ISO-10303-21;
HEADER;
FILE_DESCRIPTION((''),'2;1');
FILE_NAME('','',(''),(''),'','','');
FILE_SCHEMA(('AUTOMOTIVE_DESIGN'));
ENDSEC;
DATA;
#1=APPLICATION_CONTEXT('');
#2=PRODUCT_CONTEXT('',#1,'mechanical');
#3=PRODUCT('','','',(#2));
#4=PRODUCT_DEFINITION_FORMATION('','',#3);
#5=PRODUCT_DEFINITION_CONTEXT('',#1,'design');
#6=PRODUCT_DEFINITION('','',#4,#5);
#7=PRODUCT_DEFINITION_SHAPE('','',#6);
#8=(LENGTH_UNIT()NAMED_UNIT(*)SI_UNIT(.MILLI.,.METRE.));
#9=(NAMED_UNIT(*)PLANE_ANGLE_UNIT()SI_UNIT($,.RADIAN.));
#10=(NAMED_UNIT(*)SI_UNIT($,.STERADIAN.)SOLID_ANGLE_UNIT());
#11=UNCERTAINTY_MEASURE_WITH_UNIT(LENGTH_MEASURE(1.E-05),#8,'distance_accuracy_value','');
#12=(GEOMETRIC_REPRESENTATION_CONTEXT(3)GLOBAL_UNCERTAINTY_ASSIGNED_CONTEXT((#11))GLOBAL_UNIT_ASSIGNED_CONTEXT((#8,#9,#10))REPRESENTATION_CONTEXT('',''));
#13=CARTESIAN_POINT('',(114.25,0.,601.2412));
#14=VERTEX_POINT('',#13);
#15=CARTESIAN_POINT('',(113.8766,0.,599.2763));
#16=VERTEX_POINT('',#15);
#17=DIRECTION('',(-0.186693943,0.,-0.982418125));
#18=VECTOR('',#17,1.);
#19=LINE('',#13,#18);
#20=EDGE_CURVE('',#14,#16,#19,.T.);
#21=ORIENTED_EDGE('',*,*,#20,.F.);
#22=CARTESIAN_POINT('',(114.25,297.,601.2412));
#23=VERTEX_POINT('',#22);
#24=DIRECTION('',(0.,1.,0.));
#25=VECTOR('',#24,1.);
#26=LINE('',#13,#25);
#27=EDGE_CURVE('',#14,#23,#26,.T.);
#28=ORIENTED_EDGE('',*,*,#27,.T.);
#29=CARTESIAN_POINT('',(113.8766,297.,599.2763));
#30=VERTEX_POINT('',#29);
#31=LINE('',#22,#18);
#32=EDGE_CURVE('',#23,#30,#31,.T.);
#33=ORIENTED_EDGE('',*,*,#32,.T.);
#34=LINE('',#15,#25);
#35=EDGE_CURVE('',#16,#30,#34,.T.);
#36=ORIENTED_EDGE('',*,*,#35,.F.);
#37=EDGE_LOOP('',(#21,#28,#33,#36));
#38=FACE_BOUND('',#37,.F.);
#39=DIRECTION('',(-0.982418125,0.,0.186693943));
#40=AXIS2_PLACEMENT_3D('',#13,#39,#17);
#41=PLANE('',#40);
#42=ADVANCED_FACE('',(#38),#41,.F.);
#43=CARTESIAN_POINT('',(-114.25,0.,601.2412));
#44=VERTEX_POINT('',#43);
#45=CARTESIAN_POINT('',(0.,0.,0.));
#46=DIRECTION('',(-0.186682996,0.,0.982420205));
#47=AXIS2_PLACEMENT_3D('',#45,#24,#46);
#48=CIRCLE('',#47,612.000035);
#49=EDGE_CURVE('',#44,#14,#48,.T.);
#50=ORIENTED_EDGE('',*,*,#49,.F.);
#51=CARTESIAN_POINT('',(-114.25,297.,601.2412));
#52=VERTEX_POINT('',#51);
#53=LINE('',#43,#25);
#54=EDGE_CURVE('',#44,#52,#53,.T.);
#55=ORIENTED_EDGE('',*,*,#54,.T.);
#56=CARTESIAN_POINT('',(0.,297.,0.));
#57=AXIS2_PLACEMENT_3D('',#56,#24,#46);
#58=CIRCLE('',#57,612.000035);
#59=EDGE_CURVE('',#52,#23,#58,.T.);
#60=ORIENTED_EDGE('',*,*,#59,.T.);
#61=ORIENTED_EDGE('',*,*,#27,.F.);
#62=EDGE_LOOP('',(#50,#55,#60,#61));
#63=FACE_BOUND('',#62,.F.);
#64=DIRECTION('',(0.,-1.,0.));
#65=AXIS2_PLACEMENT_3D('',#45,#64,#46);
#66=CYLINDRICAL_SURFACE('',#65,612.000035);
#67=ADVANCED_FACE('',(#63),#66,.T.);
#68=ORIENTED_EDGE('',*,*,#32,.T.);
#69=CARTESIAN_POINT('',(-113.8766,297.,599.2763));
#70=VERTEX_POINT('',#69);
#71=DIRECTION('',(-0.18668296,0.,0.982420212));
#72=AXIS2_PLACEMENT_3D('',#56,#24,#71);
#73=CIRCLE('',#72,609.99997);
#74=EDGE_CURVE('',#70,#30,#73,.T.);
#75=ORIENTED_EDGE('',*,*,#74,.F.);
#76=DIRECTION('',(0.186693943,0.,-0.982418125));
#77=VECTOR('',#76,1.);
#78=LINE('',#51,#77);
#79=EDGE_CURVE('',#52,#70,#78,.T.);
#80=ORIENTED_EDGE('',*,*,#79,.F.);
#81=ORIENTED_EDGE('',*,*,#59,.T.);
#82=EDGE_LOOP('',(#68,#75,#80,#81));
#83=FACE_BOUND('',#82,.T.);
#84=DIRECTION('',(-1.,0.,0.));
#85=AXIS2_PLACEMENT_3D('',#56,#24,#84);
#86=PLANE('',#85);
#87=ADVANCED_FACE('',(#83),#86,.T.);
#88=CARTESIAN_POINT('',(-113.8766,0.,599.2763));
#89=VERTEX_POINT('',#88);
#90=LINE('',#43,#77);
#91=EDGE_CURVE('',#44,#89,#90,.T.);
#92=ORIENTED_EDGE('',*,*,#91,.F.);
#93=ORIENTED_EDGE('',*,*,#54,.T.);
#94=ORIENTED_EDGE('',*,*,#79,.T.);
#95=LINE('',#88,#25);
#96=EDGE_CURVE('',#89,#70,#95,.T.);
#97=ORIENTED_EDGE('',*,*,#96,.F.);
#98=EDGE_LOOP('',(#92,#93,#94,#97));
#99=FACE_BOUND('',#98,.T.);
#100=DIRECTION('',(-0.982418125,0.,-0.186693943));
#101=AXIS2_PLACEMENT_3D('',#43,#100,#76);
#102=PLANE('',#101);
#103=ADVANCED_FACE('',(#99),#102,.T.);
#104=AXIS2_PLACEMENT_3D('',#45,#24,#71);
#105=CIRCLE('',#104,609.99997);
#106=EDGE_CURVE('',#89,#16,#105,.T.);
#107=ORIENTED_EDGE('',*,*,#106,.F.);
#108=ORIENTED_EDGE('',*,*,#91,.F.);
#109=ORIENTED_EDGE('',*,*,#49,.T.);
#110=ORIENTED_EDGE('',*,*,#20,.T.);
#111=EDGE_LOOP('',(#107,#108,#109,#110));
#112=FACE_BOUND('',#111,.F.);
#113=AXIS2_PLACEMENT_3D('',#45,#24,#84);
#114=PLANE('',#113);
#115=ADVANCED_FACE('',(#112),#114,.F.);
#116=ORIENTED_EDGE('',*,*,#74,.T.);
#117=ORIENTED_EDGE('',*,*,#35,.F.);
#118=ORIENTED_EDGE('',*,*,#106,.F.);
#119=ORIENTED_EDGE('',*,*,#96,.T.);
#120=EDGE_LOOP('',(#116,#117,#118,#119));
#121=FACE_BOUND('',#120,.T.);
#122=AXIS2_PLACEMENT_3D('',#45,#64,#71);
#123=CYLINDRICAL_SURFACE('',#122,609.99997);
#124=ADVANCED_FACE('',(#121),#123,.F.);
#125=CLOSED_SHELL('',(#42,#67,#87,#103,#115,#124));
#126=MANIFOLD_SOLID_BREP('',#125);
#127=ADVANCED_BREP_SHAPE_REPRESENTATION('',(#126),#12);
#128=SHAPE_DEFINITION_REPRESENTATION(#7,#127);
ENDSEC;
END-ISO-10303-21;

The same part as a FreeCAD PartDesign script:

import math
import FreeCAD as App
import Part
import Sketcher
from FreeCAD import Vector
Q = App.Units.Quantity

doc = App.newDocument("Part")
body = doc.addObject("PartDesign::Body", "Body")

# Sketch on XZ plane
sketch1 = body.newObject("Sketcher::SketchObject", "Sketch")
sketch1.AttachmentSupport = (doc.getObject("XZ_Plane"), [""])
sketch1.MapMode = "FlatFace"
sketch1.addGeometry(Part.LineSegment(Vector(-113.9, 599.3, 0), Vector(-114.2, 601.2, 0)), False)
sketch1.addGeometry(Part.ArcOfCircle(Part.Circle(Vector(0, 0, 0), Vector(0, 0, 1), 612), math.radians(79), math.radians(101)), False)
sketch1.addGeometry(Part.LineSegment(Vector(114.2, 601.2, 0), Vector(113.9, 599.3, 0)), False)
sketch1.addGeometry(Part.ArcOfCircle(Part.Circle(Vector(0, 0, 0), Vector(0, 0, 1), 610), math.radians(79), math.radians(101)), False)
sketch1.addConstraint(Sketcher.Constraint("Coincident", 0, 2, 1, 2))
sketch1.addConstraint(Sketcher.Constraint("Coincident", 1, 1, 2, 1))
sketch1.addConstraint(Sketcher.Constraint("Coincident", 2, 2, 3, 1))
sketch1.addConstraint(Sketcher.Constraint("Coincident", 3, 2, 0, 1))
sketch1.addConstraint(Sketcher.Constraint("Coincident", 1, 3, -1, 1))
sketch1.addConstraint(Sketcher.Constraint("Coincident", 3, 3, -1, 1))
sketch1.addConstraint(Sketcher.Constraint("Horizontal", 0, 2, 1, 1))
sketch1.addConstraint(Sketcher.Constraint("Horizontal", 2, 2, 3, 2))
sketch1.addConstraint(Sketcher.Constraint("Radius", 3, Q("610 mm")))
sketch1.addConstraint(Sketcher.Constraint("Distance", 0, Q("2 mm")))
sketch1.addConstraint(Sketcher.Constraint("DistanceX", 0, 2, 1, 1, Q("228.5 mm")))
sketch1.addConstraint(Sketcher.Constraint("Angle", 0, Q("100.76 deg")))
pad1 = body.newObject("PartDesign::Pad", "Pad")
pad1.Profile = sketch1
pad1.Length = 297
pad1.Reversed = True

doc.recompute()
